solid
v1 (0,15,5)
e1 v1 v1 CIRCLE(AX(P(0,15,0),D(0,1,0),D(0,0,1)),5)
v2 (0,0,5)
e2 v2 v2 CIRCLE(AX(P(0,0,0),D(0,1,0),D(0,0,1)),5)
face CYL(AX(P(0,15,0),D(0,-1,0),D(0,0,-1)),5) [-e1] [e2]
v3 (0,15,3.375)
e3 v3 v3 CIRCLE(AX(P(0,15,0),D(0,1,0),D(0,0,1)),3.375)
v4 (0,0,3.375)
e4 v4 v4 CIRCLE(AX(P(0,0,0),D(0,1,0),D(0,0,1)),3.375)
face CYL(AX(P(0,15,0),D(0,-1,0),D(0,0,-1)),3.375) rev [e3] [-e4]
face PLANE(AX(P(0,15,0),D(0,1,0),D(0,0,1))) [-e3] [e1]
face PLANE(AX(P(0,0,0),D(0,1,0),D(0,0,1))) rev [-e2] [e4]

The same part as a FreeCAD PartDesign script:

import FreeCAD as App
import Part
import Sketcher
from FreeCAD import Vector
Q = App.Units.Quantity

doc = App.newDocument("Part")
body = doc.addObject("PartDesign::Body", "Body")

sketch1 = body.newObject("Sketcher::SketchObject", "Sketch")
sketch1.AttachmentSupport = (doc.getObject("XZ_Plane"), [""])
sketch1.MapMode = "FlatFace"
sketch1.addGeometry(Part.Circle(Vector(0, 0, 0), Vector(0, 0, 1), 5), False)
sketch1.addConstraint([
    Sketcher.Constraint("Coincident", 0, 3, -1, 1),
    Sketcher.Constraint("Diameter", 0, Q("10 mm")),
])
pad1 = body.newObject("PartDesign::Pad", "Pad")
pad1.Profile = sketch1
pad1.Length = 15
pad1.Reversed = True

sketch2 = body.newObject("Sketcher::SketchObject", "Sketch001")
sketch2.AttachmentSupport = (doc.getObject("XZ_Plane"), [""])
sketch2.MapMode = "FlatFace"
sketch2.addGeometry(Part.Circle(Vector(0, 0, 0), Vector(0, 0, 1), 3.375), False)
sketch2.addConstraint([
    Sketcher.Constraint("Coincident", 0, 3, -1, 1),
    Sketcher.Constraint("Diameter", 0, Q("6.75 mm")),
])
pocket1 = body.newObject("PartDesign::Pocket", "Pocket")
pocket1.Profile = sketch2
pocket1.Type = "ThroughAll"

doc.recompute()
